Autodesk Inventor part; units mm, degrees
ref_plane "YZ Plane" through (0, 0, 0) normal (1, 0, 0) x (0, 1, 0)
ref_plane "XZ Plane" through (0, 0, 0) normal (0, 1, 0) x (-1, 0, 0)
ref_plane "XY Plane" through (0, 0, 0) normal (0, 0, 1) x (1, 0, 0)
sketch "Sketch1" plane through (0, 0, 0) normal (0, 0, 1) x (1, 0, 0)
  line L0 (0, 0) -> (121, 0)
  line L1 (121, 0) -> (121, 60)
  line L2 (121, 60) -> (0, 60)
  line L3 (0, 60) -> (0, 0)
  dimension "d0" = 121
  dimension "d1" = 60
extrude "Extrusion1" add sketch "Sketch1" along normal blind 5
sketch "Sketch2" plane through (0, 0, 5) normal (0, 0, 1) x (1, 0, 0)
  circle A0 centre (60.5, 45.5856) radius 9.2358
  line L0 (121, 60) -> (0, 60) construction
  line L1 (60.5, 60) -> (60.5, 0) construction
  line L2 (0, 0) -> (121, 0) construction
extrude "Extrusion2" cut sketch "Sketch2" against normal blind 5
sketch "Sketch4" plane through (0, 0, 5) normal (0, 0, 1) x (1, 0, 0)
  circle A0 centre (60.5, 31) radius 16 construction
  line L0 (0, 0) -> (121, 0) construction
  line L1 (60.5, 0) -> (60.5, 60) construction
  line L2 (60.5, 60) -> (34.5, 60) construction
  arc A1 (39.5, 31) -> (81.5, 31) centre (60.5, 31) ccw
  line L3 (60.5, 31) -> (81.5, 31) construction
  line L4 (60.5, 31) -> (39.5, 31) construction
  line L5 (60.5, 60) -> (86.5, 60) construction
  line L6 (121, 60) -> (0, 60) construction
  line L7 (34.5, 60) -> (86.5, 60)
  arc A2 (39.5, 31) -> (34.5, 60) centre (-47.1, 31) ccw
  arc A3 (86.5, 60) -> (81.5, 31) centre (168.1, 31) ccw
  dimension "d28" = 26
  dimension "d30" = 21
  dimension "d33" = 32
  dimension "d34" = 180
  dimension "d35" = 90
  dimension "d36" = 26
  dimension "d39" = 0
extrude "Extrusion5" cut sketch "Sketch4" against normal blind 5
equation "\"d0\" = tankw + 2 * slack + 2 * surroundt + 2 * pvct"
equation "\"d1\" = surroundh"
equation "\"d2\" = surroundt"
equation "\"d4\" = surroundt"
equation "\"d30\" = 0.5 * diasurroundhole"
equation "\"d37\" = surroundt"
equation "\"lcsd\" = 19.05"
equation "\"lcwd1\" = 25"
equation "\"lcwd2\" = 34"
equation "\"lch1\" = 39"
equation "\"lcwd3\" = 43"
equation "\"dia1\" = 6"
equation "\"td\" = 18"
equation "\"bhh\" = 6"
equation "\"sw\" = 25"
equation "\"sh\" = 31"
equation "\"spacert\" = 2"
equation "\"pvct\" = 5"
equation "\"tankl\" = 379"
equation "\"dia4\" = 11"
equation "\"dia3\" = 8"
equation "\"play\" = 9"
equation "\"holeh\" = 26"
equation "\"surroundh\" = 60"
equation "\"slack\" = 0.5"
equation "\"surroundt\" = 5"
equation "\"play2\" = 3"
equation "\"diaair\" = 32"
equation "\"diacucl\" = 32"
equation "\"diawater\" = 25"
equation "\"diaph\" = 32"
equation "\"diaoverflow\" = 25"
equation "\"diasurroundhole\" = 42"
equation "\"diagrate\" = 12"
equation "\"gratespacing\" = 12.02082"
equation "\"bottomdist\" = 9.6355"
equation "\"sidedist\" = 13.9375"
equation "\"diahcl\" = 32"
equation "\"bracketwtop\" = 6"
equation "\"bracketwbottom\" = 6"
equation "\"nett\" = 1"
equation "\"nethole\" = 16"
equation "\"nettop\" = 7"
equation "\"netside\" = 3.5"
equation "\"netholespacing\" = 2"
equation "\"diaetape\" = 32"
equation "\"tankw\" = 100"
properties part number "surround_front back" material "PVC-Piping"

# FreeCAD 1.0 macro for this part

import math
import FreeCAD as App
import Part
import Sketcher
Q = App.Units.Quantity


def add_polygon(sketch, points):
    """Adds a closed chain of lines whose ends are joined by coincident constraints."""
    first, n = sketch.GeometryCount, len(points)
    for a, b in zip(points, points[1:] + points[:1]):
        sketch.addGeometry(Part.LineSegment(App.Vector(*a, 0), App.Vector(*b, 0)), False)
    for i in range(n):
        sketch.addConstraint(Sketcher.Constraint("Coincident", first + i, 2, first + (i + 1) % n, 1))

doc = App.newDocument("Part")
body = doc.addObject("PartDesign::Body", "Body")

sketch1 = body.newObject("Sketcher::SketchObject", "Sketch")
sketch1.AttachmentSupport = (doc.getObject("XY_Plane"), [""])
sketch1.MapMode = "FlatFace"
add_polygon(sketch1, [(0, 60), (0, 0), (121, 0), (121, 60)])
sketch1.addConstraint([
    Sketcher.Constraint("Vertical", 0),
    Sketcher.Constraint("Horizontal", 1),
    Sketcher.Constraint("Vertical", 2),
    Sketcher.Constraint("Horizontal", 3),
    Sketcher.Constraint("Coincident", 0, 2, -1, 1),
    Sketcher.Constraint("DistanceX", 1, 1, 1, 2, Q("121 mm")),
    Sketcher.Constraint("DistanceY", 0, 2, 0, 1, Q("60 mm")),
])
pad1 = body.newObject("PartDesign::Pad", "Pad")
pad1.Profile = sketch1
pad1.Length = 5

sketch2 = body.newObject("Sketcher::SketchObject", "Sketch001")
sketch2.AttachmentSupport = (doc.getObject("XY_Plane"), [""])
sketch2.MapMode = "FlatFace"
sketch2.AttachmentOffset = App.Placement(App.Vector(0, 0, 5), App.Rotation())
sketch2.addGeometry(Part.Circle(App.Vector(60, 46, 0), App.Vector(0, 0, 1), 9), False)
sketch2.addConstraint([
    Sketcher.Constraint("Diameter", 0, Q("18.4716 mm")),
    Sketcher.Constraint("DistanceX", -1, 1, 0, 3, Q("60.5 mm")),
    Sketcher.Constraint("DistanceY", -1, 1, 0, 3, Q("45.5856 mm")),
])
pocket1 = body.newObject("PartDesign::Pocket", "Pocket")
pocket1.Profile = sketch2
pocket1.Length = 5

sketch3 = body.newObject("Sketcher::SketchObject", "Sketch002")
sketch3.AttachmentSupport = (doc.getObject("XY_Plane"), [""])
sketch3.MapMode = "FlatFace"
sketch3.AttachmentOffset = App.Placement(App.Vector(0, 0, 5), App.Rotation())
sketch3.addGeometry([
    Part.ArcOfCircle(Part.Circle(App.Vector(-47, 31, 0), App.Vector(0, 0, 1), 87), math.radians(0), math.radians(19.56)),
    Part.ArcOfCircle(Part.Circle(App.Vector(60, 31, 0), App.Vector(0, 0, 1), 21), math.radians(180), math.radians(360)),
    Part.ArcOfCircle(Part.Circle(App.Vector(168, 31, 0), App.Vector(0, 0, 1), 87), math.radians(160.44), math.radians(180)),
    Part.LineSegment(App.Vector(86, 60, 0), App.Vector(34, 60, 0)),
], False)
sketch3.addConstraint([
    Sketcher.Constraint("Tangent", 0, 1, 1, 1),
    Sketcher.Constraint("Tangent", 1, 2, 2, 2),
    Sketcher.Constraint("Coincident", 2, 1, 3, 1),
    Sketcher.Constraint("Coincident", 3, 2, 0, 2),
    Sketcher.Constraint("Horizontal", 3),
    Sketcher.Constraint("Equal", 0, 2),
    Sketcher.Constraint("Horizontal", 0, 3, 1, 3),
    Sketcher.Constraint("Horizontal", 1, 3, 2, 3),
    Sketcher.Constraint("Radius", 1, Q("21 mm")),
    Sketcher.Constraint("DistanceX", 1, 3, 2, 1, Q("26 mm")),
    Sketcher.Constraint("Radius", 0, Q("86.6 mm")),
    Sketcher.Constraint("DistanceY", -1, 1, 0, 3, Q("31 mm")),
    Sketcher.Constraint("DistanceX", 0, 3, -1, 1, Q("47.1 mm")),
])
pocket2 = body.newObject("PartDesign::Pocket", "Pocket001")
pocket2.Profile = sketch3
pocket2.Length = 5

doc.recompute()
